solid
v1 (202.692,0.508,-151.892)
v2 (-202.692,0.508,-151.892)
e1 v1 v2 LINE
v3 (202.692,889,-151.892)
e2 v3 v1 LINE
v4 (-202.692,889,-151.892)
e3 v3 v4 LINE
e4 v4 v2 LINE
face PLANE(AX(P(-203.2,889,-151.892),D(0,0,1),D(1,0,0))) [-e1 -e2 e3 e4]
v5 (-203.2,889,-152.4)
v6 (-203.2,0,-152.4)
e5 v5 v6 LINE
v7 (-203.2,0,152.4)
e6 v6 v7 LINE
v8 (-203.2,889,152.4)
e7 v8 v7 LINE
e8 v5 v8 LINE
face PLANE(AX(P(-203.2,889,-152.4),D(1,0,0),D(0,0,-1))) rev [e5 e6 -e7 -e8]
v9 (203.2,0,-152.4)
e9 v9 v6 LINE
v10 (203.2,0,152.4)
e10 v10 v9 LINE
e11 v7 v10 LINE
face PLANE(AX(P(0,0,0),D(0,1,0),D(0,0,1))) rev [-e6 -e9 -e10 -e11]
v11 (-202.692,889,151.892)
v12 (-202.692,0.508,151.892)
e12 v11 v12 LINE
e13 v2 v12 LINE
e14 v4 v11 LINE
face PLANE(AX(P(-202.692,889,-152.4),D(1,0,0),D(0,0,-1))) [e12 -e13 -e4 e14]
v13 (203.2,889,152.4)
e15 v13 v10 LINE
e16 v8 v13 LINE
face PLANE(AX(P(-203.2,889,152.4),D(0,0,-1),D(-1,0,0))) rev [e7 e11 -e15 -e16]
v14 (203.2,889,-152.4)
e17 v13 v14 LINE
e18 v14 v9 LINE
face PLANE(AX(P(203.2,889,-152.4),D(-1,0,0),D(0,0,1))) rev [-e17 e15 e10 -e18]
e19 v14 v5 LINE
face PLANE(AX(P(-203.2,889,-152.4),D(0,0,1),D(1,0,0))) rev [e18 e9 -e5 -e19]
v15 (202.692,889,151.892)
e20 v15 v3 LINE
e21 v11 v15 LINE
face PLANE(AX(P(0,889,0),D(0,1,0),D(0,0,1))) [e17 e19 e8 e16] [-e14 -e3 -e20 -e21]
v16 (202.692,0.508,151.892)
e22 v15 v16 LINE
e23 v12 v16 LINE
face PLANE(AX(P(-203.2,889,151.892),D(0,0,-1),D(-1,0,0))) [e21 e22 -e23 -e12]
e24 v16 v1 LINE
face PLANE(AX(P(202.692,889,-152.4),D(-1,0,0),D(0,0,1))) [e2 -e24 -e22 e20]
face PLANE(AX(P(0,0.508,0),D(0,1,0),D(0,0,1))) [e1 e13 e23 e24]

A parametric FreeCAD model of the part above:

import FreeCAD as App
import Part
import Sketcher
Q = App.Units.Quantity


def faces_at(feature, points):
    """Names of the faces that lie closest to the given points."""
    faces = feature.Shape.Faces
    near = lambda p: min(range(len(faces)), key=lambda i: faces[i].distToShape(Part.Vertex(*p))[0])
    return sorted({f"Face{near(p) + 1}" for p in points})


def add_polygon(sketch, points):
    """Adds a closed chain of lines whose ends are joined by coincident constraints."""
    first, n = sketch.GeometryCount, len(points)
    for a, b in zip(points, points[1:] + points[:1]):
        sketch.addGeometry(Part.LineSegment(App.Vector(*a, 0), App.Vector(*b, 0)), False)
    for i in range(n):
        sketch.addConstraint(Sketcher.Constraint("Coincident", first + i, 2, first + (i + 1) % n, 1))

doc = App.newDocument("Part")
params = doc.addObject("Spreadsheet::Sheet", "Params")
for row, (alias, value) in enumerate([
    ("sketch1_width", "16 in"),
    ("sketch1_height", "12 in"),
    ("pad1_length", "35 in"),
    ("thickness_wall", "0.02 in"),
], start=1):
    params.set(f"A{row}", alias)
    params.set(f"B{row}", "=" + value)
    params.setAlias(f"B{row}", alias)

body = doc.addObject("PartDesign::Body", "Body")

# Sketch on XZ plane
sketch1 = doc.addObject("Sketcher::SketchObject", "Sketch")
body.addObject(sketch1)
sketch1.AttachmentSupport = (doc.XZ_Plane, [""])
sketch1.MapMode = "FlatFace"
add_polygon(sketch1, [(-203, -152), (-203, 152), (203, 152), (203, -152)])  # lines 0-3
sketch1.addConstraint([
    Sketcher.Constraint("Vertical", 0),
    Sketcher.Constraint("Horizontal", 1),
    Sketcher.Constraint("Vertical", 2),
    Sketcher.Constraint("Horizontal", 3),
    Sketcher.Constraint("Symmetric", 0, 2, 2, 2, -1, 1),
    Sketcher.Constraint("DistanceX", 1, 1, 1, 2, Q("16 in")),
    Sketcher.Constraint("DistanceY", 0, 1, 0, 2, Q("12 in")),
])
sketch1.setExpression("Constraints[9]", "Params.sketch1_width")
sketch1.setExpression("Constraints[10]", "Params.sketch1_height")
pad1 = doc.addObject("PartDesign::Pad", "Pad")
body.addObject(pad1)
pad1.Profile = sketch1
pad1.setExpression("Length", "Params.pad1_length")
pad1.Reversed = True
doc.recompute()

thickness = doc.addObject("PartDesign::Thickness", "Thickness")
body.addObject(thickness)
thickness.Base = (pad1, faces_at(pad1, [(0, 889, 0)]))
thickness.setExpression("Value", "Params.thickness_wall")
thickness.Reversed = True
thickness.Join = "Intersection"

doc.recompute()
